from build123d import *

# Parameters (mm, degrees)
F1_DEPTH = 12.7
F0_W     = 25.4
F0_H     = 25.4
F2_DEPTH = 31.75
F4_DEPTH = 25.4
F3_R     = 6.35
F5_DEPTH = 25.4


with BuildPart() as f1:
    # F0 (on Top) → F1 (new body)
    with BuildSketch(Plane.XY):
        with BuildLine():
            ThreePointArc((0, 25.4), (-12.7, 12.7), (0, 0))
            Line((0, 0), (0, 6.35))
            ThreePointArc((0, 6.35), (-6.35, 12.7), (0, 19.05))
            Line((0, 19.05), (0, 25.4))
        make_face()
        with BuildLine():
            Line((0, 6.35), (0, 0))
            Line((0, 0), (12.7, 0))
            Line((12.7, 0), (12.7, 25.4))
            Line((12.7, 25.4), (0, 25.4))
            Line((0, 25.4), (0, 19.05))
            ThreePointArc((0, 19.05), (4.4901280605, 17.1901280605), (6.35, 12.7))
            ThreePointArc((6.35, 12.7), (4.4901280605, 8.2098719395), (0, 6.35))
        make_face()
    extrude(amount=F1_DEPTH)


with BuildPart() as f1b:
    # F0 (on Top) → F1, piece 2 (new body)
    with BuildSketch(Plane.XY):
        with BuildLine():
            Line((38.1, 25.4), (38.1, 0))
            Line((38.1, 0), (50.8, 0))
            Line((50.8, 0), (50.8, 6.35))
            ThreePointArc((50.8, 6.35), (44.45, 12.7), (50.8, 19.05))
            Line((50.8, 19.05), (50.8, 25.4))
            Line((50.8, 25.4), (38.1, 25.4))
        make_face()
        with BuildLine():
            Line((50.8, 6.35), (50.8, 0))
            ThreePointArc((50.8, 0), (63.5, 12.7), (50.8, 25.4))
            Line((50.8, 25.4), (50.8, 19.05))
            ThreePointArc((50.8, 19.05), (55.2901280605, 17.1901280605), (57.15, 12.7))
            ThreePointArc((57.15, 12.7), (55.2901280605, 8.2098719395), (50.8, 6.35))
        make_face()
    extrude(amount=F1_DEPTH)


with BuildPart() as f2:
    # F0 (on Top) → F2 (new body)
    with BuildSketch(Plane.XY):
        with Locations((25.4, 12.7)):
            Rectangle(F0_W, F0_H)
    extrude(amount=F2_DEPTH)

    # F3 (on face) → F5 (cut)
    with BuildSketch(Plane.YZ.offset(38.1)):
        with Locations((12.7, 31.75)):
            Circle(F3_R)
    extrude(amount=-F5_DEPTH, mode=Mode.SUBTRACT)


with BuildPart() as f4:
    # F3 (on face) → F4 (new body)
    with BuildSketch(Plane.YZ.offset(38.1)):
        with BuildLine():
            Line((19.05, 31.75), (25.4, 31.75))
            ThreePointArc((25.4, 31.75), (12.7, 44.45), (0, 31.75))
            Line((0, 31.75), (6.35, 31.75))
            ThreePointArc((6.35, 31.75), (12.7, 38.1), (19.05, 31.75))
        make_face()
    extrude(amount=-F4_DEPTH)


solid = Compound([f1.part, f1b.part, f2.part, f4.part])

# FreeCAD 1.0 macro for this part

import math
import FreeCAD as App
import Part
import Sketcher
Q = App.Units.Quantity


def add_polygon(sketch, points):
    """Adds a closed chain of lines whose ends are joined by coincident constraints."""
    first, n = sketch.GeometryCount, len(points)
    for a, b in zip(points, points[1:] + points[:1]):
        sketch.addGeometry(Part.LineSegment(App.Vector(*a, 0), App.Vector(*b, 0)), False)
    for i in range(n):
        sketch.addConstraint(Sketcher.Constraint("Coincident", first + i, 2, first + (i + 1) % n, 1))

doc = App.newDocument("Part")
params = doc.addObject("Spreadsheet::Sheet", "Params")
for row, (alias, value) in enumerate([
    ("sketch1_radius", "0.5 in"),
    ("sketch1_radius2", "0.25 in"),
    ("sketch1_width", "0.5 in"),
    ("pad1_length", "0.5 in"),
    ("sketch2_radius", "0.5 in"),
    ("sketch2_radius2", "0.25 in"),
    ("sketch2_width", "0.5 in"),
    ("pad2_length", "0.5 in"),
    ("sketch3_width", "1 in"),
    ("pad3_length", "1.25 in"),
    ("sketch4_diameter", "0.5 in"),
    ("pocket1_length", "1 in"),
    ("sketch5_radius", "0.5 in"),
    ("sketch5_radius2", "0.25 in"),
    ("pad4_length", "1 in"),
], start=1):
    params.set(f"A{row}", alias)
    params.set(f"B{row}", "=" + value)
    params.setAlias(f"B{row}", alias)

body = doc.addObject("PartDesign::Body", "Body")

sketch1 = doc.addObject("Sketcher::SketchObject", "Sketch")
body.addObject(sketch1)
sketch1.AttachmentSupport = (doc.XY_Plane, [""])
sketch1.MapMode = "FlatFace"
sketch1.addGeometry([
    Part.ArcOfCircle(Part.Circle(App.Vector(0, 12.7, 0), App.Vector(0, 0, 1), 12.7), math.radians(90), math.radians(270)),
    Part.LineSegment(App.Vector(0, 0, 0), App.Vector(12.7, 0, 0)),
    Part.LineSegment(App.Vector(12.7, 0, 0), App.Vector(12.7, 25.4, 0)),
    Part.LineSegment(App.Vector(12.7, 25.4, 0), App.Vector(0, 25.4, 0)),
    Part.ArcOfCircle(Part.Circle(App.Vector(0, 12.7, 0), App.Vector(0, 0, 1), 6.35), math.radians(90), math.radians(270)),
    Part.ArcOfCircle(Part.Circle(App.Vector(0, 12.7, 0), App.Vector(0, 0, 1), 6.35), math.radians(0), math.radians(90)),
    Part.ArcOfCircle(Part.Circle(App.Vector(0, 12.7, 0), App.Vector(0, 0, 1), 6.35), math.radians(-90), math.radians(0)),
], False)
sketch1.addConstraint([
    Sketcher.Constraint("Tangent", 0, 2, 1, 1),
    Sketcher.Constraint("Coincident", 1, 2, 2, 1),
    Sketcher.Constraint("Coincident", 2, 2, 3, 1),
    Sketcher.Constraint("Tangent", 3, 2, 0, 1),
    Sketcher.Constraint("Tangent", 4, 1, 5, 2),
    Sketcher.Constraint("Tangent", 5, 1, 6, 2),
    Sketcher.Constraint("Tangent", 6, 1, 4, 2),
    Sketcher.Constraint("Horizontal", 1),
    Sketcher.Constraint("Vertical", 2),
    Sketcher.Constraint("Horizontal", 3),
    Sketcher.Constraint("Coincident", 0, 2, -1, 1),
    Sketcher.Constraint("Coincident", 4, 3, 0, 3),
    Sketcher.Constraint("PointOnObject", 4, 1, -2),
    Sketcher.Constraint("PointOnObject", 6, 1, -2),
    Sketcher.Constraint("Horizontal", 6, 3, 5, 1),
    Sketcher.Constraint("Radius", 0, Q("0.5 in")),
    Sketcher.Constraint("Radius", 4, Q("0.25 in")),
    Sketcher.Constraint("DistanceX", 1, 1, 1, 2, Q("0.5 in")),
])
sketch1.setExpression("Constraints[15]", "Params.sketch1_radius")
sketch1.setExpression("Constraints[16]", "Params.sketch1_radius2")
sketch1.setExpression("Constraints[17]", "Params.sketch1_width")
pad1 = doc.addObject("PartDesign::Pad", "Pad")
body.addObject(pad1)
pad1.Profile = sketch1
pad1.setExpression("Length", "Params.pad1_length")
body2 = doc.addObject("PartDesign::Body", "Body001")

sketch2 = doc.addObject("Sketcher::SketchObject", "Sketch001")
body2.addObject(sketch2)
sketch2.AttachmentSupport = (doc.getObject("XY_Plane001"), [""])
sketch2.MapMode = "FlatFace"
sketch2.addGeometry([
    Part.LineSegment(App.Vector(38.1, 25.4, 0), App.Vector(38.1, 0, 0)),
    Part.LineSegment(App.Vector(38.1, 0, 0), App.Vector(50.8, 0, 0)),
    Part.ArcOfCircle(Part.Circle(App.Vector(50.8, 12.7, 0), App.Vector(0, 0, 1), 12.7), math.radians(-90), math.radians(90)),
    Part.LineSegment(App.Vector(50.8, 25.4, 0), App.Vector(38.1, 25.4, 0)),
    Part.ArcOfCircle(Part.Circle(App.Vector(50.8, 12.7, 0), App.Vector(0, 0, 1), 6.35), math.radians(90), math.radians(270)),
    Part.ArcOfCircle(Part.Circle(App.Vector(50.8, 12.7, 0), App.Vector(0, 0, 1), 6.35), math.radians(0), math.radians(90)),
    Part.ArcOfCircle(Part.Circle(App.Vector(50.8, 12.7, 0), App.Vector(0, 0, 1), 6.35), math.radians(-90), math.radians(0)),
], False)
sketch2.addConstraint([
    Sketcher.Constraint("Coincident", 0, 2, 1, 1),
    Sketcher.Constraint("Tangent", 1, 2, 2, 1),
    Sketcher.Constraint("Tangent", 2, 2, 3, 1),
    Sketcher.Constraint("Coincident", 3, 2, 0, 1),
    Sketcher.Constraint("Tangent", 4, 1, 5, 2),
    Sketcher.Constraint("Tangent", 5, 1, 6, 2),
    Sketcher.Constraint("Tangent", 6, 1, 4, 2),
    Sketcher.Constraint("Vertical", 0),
    Sketcher.Constraint("Horizontal", 1),
    Sketcher.Constraint("Horizontal", 3),
    Sketcher.Constraint("Coincident", 4, 3, 2, 3),
    Sketcher.Constraint("PointOnObject", 0, 2, -1),
    Sketcher.Constraint("Horizontal", 6, 3, 5, 1),
    Sketcher.Constraint("Vertical", 2, 2, 4, 1),
    Sketcher.Constraint("Vertical", 4, 1, 6, 1),
    Sketcher.Constraint("Radius", 2, Q("0.5 in")),
    Sketcher.Constraint("Radius", 4, Q("0.25 in")),
    Sketcher.Constraint("DistanceX", 1, 1, 1, 2, Q("0.5 in")),
    Sketcher.Constraint("DistanceX", -1, 1, 2, 3, Q("2 in")),
])
sketch2.setExpression("Constraints[15]", "Params.sketch2_radius")
sketch2.setExpression("Constraints[16]", "Params.sketch2_radius2")
sketch2.setExpression("Constraints[17]", "Params.sketch2_width")
pad2 = doc.addObject("PartDesign::Pad", "Pad001")
body2.addObject(pad2)
pad2.Profile = sketch2
pad2.setExpression("Length", "Params.pad2_length")
body3 = doc.addObject("PartDesign::Body", "Body002")

sketch3 = doc.addObject("Sketcher::SketchObject", "Sketch002")
body3.addObject(sketch3)
sketch3.AttachmentSupport = (doc.getObject("XY_Plane002"), [""])
sketch3.MapMode = "FlatFace"
add_polygon(sketch3, [(12.7, 25.4), (12.7, 0), (38.1, 0), (38.1, 25.4)])
sketch3.addConstraint([
    Sketcher.Constraint("Vertical", 0),
    Sketcher.Constraint("Horizontal", 1),
    Sketcher.Constraint("Vertical", 2),
    Sketcher.Constraint("Horizontal", 3),
    Sketcher.Constraint("PointOnObject", 0, 2, -1),
    Sketcher.Constraint("Equal", 3, 0),
    Sketcher.Constraint("DistanceX", 1, 1, 1, 2, Q("1 in")),
    Sketcher.Constraint("DistanceX", -1, 1, 0, 2, Q("0.5 in")),
])
sketch3.setExpression("Constraints[10]", "Params.sketch3_width")
pad3 = doc.addObject("PartDesign::Pad", "Pad002")
body3.addObject(pad3)
pad3.Profile = sketch3
pad3.setExpression("Length", "Params.pad3_length")

sketch4 = doc.addObject("Sketcher::SketchObject", "Sketch003")
body3.addObject(sketch4)
sketch4.AttachmentSupport = (doc.getObject("YZ_Plane002"), [""])
sketch4.MapMode = "FlatFace"
sketch4.AttachmentOffset = App.Placement(App.Vector(0, 0, 1.5 * 25.4), App.Rotation())
sketch4.addGeometry(Part.Circle(App.Vector(12.7, 31.75, 0), App.Vector(0, 0, 1), 6.35), False)
sketch4.addConstraint([
    Sketcher.Constraint("Diameter", 0, Q("0.5 in")),
    Sketcher.Constraint("DistanceX", -1, 1, 0, 3, Q("0.5 in")),
    Sketcher.Constraint("DistanceY", -1, 1, 0, 3, Q("1.25 in")),
])
sketch4.setExpression("Constraints[0]", "Params.sketch4_diameter")
pocket1 = doc.addObject("PartDesign::Pocket", "Pocket")
body3.addObject(pocket1)
pocket1.Profile = sketch4
pocket1.setExpression("Length", "Params.pocket1_length")
body4 = doc.addObject("PartDesign::Body", "Body003")

sketch5 = doc.addObject("Sketcher::SketchObject", "Sketch004")
body4.addObject(sketch5)
sketch5.AttachmentSupport = (doc.getObject("YZ_Plane003"), [""])
sketch5.MapMode = "FlatFace"
sketch5.AttachmentOffset = App.Placement(App.Vector(0, 0, 1.5 * 25.4), App.Rotation())
sketch5.addGeometry([
    Part.LineSegment(App.Vector(19.05, 31.75, 0), App.Vector(25.4, 31.75, 0)),
    Part.ArcOfCircle(Part.Circle(App.Vector(12.7, 31.75, 0), App.Vector(0, 0, 1), 12.7), math.radians(0), math.radians(180)),
    Part.LineSegment(App.Vector(0, 31.75, 0), App.Vector(6.35, 31.75, 0)),
    Part.ArcOfCircle(Part.Circle(App.Vector(12.7, 31.75, 0), App.Vector(0, 0, 1), 6.35), math.radians(0), math.radians(180)),
], False)
sketch5.addConstraint([
    Sketcher.Constraint("Coincident", 0, 2, 1, 1),
    Sketcher.Constraint("Coincident", 1, 2, 2, 1),
    Sketcher.Constraint("Coincident", 2, 2, 3, 2),
    Sketcher.Constraint("Coincident", 3, 1, 0, 1),
    Sketcher.Constraint("Horizontal", 0),
    Sketcher.Constraint("Horizontal", 2),
    Sketcher.Constraint("Coincident", 3, 3, 1, 3),
    Sketcher.Constraint("PointOnObject", 1, 2, -2),
    Sketcher.Constraint("Horizontal", 3, 3, 0, 2),
    Sketcher.Constraint("Horizontal", 0, 2, 1, 2),
    Sketcher.Constraint("Radius", 1, Q("0.5 in")),
    Sketcher.Constraint("Radius", 3, Q("0.25 in")),
    Sketcher.Constraint("DistanceY", -1, 1, 1, 3, Q("1.25 in")),
])
sketch5.setExpression("Constraints[10]", "Params.sketch5_radius")
sketch5.setExpression("Constraints[11]", "Params.sketch5_radius2")
pad4 = doc.addObject("PartDesign::Pad", "Pad003")
body4.addObject(pad4)
pad4.Profile = sketch5
pad4.setExpression("Length", "Params.pad4_length")
pad4.Reversed = True

doc.recompute()
